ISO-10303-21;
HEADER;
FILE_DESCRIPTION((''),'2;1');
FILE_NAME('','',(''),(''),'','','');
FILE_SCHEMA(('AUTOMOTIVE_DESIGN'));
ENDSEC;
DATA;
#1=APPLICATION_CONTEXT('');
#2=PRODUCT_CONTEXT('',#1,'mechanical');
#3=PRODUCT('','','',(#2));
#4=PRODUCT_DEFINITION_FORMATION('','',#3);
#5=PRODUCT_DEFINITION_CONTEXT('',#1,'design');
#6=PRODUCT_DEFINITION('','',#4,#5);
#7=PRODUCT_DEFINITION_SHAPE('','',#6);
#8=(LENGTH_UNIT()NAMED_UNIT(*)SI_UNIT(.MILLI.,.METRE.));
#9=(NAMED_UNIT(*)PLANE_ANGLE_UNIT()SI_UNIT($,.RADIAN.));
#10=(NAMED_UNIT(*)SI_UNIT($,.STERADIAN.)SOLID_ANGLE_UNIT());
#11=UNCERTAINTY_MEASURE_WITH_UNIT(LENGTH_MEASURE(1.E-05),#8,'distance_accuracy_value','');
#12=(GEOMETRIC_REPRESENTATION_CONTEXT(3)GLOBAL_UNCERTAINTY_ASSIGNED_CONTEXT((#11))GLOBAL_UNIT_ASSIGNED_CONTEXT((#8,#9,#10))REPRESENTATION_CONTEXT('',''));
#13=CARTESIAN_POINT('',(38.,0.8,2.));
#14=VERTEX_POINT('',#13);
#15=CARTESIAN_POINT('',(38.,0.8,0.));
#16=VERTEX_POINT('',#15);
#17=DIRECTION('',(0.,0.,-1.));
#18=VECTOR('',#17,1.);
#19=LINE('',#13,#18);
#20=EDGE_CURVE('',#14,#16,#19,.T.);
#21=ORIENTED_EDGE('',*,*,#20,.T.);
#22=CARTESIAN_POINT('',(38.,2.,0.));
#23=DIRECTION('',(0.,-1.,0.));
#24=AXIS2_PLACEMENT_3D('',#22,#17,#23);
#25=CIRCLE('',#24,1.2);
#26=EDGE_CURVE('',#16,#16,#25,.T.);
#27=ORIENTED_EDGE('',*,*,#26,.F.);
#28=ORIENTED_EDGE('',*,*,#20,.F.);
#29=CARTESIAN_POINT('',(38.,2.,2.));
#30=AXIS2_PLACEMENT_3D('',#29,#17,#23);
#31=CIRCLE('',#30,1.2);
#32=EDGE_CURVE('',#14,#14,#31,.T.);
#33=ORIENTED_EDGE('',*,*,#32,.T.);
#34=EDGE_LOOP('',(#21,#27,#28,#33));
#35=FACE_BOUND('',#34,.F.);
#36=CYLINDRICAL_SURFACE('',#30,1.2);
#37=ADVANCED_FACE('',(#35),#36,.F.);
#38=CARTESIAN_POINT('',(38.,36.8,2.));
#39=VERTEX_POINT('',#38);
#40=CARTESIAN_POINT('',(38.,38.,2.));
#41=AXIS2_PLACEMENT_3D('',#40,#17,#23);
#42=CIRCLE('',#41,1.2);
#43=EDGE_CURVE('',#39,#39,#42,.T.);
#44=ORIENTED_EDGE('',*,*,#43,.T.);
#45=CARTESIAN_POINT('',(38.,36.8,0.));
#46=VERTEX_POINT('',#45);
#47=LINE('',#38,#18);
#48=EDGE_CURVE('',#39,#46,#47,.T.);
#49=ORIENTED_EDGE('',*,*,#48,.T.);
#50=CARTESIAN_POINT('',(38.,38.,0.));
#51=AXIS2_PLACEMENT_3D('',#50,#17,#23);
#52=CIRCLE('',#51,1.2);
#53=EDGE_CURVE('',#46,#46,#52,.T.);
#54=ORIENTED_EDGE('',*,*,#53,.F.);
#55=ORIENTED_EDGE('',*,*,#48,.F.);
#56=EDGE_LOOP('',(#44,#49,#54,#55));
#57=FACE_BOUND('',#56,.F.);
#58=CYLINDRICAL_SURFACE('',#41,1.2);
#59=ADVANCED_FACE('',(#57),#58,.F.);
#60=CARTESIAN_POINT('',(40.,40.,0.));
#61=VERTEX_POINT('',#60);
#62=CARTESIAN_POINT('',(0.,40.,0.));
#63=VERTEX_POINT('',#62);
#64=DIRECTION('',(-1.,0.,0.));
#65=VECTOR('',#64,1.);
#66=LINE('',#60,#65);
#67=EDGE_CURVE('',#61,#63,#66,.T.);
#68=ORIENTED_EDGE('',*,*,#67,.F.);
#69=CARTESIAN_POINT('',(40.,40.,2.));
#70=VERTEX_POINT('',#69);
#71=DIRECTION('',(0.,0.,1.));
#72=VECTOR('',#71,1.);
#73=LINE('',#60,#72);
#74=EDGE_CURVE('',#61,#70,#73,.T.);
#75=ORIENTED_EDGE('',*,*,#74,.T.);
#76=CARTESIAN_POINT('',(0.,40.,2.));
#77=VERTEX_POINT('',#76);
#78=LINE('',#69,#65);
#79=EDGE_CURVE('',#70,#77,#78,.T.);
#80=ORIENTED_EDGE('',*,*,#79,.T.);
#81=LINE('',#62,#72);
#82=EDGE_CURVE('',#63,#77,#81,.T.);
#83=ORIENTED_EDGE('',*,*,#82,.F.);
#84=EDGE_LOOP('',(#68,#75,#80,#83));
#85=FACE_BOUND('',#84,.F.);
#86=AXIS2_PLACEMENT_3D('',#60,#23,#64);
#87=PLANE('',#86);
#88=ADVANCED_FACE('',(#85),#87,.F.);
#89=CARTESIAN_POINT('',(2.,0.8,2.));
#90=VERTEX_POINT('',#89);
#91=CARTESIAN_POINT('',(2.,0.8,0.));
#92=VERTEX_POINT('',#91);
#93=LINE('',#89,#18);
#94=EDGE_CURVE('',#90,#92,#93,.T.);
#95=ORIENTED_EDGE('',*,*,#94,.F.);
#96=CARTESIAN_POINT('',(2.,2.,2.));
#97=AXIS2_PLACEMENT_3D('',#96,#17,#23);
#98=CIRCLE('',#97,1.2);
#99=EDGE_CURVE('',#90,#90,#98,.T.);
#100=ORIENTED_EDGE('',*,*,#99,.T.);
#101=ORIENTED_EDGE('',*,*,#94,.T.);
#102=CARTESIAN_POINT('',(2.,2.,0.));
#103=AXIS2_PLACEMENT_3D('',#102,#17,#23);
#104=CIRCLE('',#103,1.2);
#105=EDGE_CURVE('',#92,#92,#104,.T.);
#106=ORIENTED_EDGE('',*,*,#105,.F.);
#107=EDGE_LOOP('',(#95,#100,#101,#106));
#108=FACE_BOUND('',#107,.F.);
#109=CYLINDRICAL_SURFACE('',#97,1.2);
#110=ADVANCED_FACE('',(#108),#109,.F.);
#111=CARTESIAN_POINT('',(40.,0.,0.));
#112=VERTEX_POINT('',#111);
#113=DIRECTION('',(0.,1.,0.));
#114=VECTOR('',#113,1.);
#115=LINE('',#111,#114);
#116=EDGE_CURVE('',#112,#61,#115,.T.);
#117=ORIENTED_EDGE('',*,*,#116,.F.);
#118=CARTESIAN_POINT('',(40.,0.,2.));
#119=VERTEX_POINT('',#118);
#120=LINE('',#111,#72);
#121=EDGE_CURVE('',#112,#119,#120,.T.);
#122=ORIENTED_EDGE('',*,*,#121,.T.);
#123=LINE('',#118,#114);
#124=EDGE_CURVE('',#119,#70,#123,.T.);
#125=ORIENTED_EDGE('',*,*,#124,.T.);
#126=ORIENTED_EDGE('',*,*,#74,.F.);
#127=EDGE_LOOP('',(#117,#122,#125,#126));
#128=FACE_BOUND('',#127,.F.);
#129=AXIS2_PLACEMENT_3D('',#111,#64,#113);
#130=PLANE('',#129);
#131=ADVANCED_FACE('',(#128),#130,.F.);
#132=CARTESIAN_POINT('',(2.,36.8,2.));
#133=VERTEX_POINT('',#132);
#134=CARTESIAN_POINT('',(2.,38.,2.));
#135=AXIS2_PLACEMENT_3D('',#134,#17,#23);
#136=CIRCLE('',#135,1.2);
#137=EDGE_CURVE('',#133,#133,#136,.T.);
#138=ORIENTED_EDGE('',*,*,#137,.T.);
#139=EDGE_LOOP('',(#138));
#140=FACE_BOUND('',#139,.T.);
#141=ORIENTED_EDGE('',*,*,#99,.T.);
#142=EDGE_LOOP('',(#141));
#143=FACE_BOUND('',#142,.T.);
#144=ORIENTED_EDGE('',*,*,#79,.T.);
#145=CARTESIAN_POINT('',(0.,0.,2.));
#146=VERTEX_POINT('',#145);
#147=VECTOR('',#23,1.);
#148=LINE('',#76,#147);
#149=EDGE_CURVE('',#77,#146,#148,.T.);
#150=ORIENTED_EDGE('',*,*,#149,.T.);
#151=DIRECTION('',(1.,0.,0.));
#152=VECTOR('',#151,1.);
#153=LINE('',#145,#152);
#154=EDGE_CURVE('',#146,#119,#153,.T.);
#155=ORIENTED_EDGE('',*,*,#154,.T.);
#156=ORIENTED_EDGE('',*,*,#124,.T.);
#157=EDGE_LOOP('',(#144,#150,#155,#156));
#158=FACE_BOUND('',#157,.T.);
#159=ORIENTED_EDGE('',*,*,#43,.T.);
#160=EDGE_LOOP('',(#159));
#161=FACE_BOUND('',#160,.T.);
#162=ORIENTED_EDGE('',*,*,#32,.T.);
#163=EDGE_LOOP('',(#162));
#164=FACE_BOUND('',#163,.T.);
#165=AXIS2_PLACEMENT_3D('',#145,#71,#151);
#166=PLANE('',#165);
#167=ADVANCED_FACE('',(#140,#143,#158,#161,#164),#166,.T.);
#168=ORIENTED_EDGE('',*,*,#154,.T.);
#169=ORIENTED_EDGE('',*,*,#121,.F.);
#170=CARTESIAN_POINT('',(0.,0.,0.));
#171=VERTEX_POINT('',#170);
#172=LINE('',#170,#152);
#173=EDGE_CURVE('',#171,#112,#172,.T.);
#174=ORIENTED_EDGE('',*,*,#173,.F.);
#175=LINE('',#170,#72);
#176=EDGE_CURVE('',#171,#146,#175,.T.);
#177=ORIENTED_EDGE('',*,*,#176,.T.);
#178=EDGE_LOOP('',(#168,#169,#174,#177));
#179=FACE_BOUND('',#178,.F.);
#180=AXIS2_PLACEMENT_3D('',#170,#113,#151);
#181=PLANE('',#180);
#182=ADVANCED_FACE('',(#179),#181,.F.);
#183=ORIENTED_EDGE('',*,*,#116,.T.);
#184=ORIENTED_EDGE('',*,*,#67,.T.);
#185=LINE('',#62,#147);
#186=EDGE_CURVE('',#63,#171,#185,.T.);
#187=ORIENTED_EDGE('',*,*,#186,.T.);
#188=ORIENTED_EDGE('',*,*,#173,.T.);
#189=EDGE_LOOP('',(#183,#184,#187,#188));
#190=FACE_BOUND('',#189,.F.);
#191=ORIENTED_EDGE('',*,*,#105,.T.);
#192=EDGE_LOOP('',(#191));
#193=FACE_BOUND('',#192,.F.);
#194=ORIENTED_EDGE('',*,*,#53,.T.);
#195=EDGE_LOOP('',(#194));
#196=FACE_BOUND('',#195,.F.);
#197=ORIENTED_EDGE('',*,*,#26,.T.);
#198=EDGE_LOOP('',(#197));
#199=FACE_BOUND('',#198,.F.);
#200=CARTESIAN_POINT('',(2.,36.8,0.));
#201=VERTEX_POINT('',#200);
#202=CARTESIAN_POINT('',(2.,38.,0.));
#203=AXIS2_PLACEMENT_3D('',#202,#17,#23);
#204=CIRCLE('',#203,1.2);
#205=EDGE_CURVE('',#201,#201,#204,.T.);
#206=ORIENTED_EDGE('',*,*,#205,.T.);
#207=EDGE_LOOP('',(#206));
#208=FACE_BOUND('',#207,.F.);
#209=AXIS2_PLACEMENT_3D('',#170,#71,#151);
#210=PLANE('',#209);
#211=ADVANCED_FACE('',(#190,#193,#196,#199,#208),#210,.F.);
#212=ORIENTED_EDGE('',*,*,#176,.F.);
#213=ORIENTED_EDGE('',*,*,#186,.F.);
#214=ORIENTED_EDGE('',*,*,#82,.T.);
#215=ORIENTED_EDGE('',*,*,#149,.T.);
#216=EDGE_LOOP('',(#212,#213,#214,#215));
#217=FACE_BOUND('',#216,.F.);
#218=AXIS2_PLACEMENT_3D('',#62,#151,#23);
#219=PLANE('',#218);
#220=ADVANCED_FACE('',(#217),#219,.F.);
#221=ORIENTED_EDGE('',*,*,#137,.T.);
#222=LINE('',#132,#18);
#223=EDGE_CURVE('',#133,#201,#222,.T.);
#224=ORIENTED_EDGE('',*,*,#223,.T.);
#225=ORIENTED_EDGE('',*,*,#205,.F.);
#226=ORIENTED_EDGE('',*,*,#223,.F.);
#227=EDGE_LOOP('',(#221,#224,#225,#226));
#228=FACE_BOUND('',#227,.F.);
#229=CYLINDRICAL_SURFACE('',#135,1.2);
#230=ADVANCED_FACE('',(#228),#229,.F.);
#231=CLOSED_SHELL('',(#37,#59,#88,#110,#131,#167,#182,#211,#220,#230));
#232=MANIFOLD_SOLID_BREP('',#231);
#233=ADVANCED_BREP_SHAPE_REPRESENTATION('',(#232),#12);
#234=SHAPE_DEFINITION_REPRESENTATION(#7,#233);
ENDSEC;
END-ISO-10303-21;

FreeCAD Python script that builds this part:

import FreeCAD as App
import Part
import Sketcher
from FreeCAD import Vector


def add_polygon(sketch, points):
    """Adds a closed chain of lines whose ends are joined by coincident constraints."""
    first, n = sketch.GeometryCount, len(points)
    for a, b in zip(points, points[1:] + points[:1]):
        sketch.addGeometry(Part.LineSegment(App.Vector(*a, 0), App.Vector(*b, 0)), False)
    for i in range(n):
        sketch.addConstraint(Sketcher.Constraint("Coincident", first + i, 2, first + (i + 1) % n, 1))

doc = App.newDocument("Part")
body = doc.addObject("PartDesign::Body", "Body")

sketch1 = body.newObject("Sketcher::SketchObject", "Sketch")
sketch1.AttachmentSupport = (doc.getObject("XY_Plane"), [""])
sketch1.MapMode = "FlatFace"
add_polygon(sketch1, [(0, 40), (0, 0), (40, 0), (40, 40)])
sketch1.addConstraint(Sketcher.Constraint("Vertical", 0))
sketch1.addConstraint(Sketcher.Constraint("Horizontal", 1))
sketch1.addConstraint(Sketcher.Constraint("Vertical", 2))
sketch1.addConstraint(Sketcher.Constraint("Horizontal", 3))
sketch1.addConstraint(Sketcher.Constraint("Coincident", 0, 2, -1, 1))
sketch1.addConstraint(Sketcher.Constraint("Equal", 3, 0))
sketch1.addConstraint(Sketcher.Constraint("DistanceX", 1, 1, 1, 2, 40.0))
pad1 = body.newObject("PartDesign::Pad", "Pad")
pad1.Profile = sketch1
pad1.Length = 2

sketch2 = body.newObject("Sketcher::SketchObject", "Sketch001")
sketch2.AttachmentSupport = (doc.getObject("XY_Plane"), [""])
sketch2.MapMode = "FlatFace"
sketch2.AttachmentOffset = App.Placement(Vector(0, 0, 2), App.Rotation())
sketch2.addGeometry(Part.Circle(Vector(38, 38, 0), Vector(0, 0, 1), 1.2), False)
sketch2.addGeometry(Part.Circle(Vector(2, 38, 0), Vector(0, 0, 1), 1.2), False)
sketch2.addGeometry(Part.Circle(Vector(2, 2, 0), Vector(0, 0, 1), 1.2), False)
sketch2.addGeometry(Part.Circle(Vector(38, 2, 0), Vector(0, 0, 1), 1.2), False)
sketch2.addConstraint(Sketcher.Constraint("Equal", 0, 1))
sketch2.addConstraint(Sketcher.Constraint("Equal", 1, 2))
sketch2.addConstraint(Sketcher.Constraint("Equal", 2, 3))
sketch2.addConstraint(Sketcher.Constraint("Horizontal", 0, 3, 1, 3))
sketch2.addConstraint(Sketcher.Constraint("Horizontal", 2, 3, 3, 3))
sketch2.addConstraint(Sketcher.Constraint("Vertical", 1, 3, 2, 3))
sketch2.addConstraint(Sketcher.Constraint("Vertical", 0, 3, 3, 3))
sketch2.addConstraint(Sketcher.Constraint("Diameter", 0, 2.4))
sketch2.addConstraint(Sketcher.Constraint("DistanceX", -1, 1, 0, 3, 38.0))
sketch2.addConstraint(Sketcher.Constraint("DistanceY", -1, 1, 0, 3, 38.0))
sketch2.addConstraint(Sketcher.Constraint("DistanceX", -1, 1, 1, 3, 2.0))
sketch2.addConstraint(Sketcher.Constraint("DistanceY", -1, 1, 2, 3, 2.0))
doc.recompute()
hole = body.newObject("PartDesign::Hole", "Hole")
hole.Profile = sketch2
hole.ThreadType = "None"
hole.Diameter = 2.4
hole.DepthType = "ThroughAll"

doc.recompute()
